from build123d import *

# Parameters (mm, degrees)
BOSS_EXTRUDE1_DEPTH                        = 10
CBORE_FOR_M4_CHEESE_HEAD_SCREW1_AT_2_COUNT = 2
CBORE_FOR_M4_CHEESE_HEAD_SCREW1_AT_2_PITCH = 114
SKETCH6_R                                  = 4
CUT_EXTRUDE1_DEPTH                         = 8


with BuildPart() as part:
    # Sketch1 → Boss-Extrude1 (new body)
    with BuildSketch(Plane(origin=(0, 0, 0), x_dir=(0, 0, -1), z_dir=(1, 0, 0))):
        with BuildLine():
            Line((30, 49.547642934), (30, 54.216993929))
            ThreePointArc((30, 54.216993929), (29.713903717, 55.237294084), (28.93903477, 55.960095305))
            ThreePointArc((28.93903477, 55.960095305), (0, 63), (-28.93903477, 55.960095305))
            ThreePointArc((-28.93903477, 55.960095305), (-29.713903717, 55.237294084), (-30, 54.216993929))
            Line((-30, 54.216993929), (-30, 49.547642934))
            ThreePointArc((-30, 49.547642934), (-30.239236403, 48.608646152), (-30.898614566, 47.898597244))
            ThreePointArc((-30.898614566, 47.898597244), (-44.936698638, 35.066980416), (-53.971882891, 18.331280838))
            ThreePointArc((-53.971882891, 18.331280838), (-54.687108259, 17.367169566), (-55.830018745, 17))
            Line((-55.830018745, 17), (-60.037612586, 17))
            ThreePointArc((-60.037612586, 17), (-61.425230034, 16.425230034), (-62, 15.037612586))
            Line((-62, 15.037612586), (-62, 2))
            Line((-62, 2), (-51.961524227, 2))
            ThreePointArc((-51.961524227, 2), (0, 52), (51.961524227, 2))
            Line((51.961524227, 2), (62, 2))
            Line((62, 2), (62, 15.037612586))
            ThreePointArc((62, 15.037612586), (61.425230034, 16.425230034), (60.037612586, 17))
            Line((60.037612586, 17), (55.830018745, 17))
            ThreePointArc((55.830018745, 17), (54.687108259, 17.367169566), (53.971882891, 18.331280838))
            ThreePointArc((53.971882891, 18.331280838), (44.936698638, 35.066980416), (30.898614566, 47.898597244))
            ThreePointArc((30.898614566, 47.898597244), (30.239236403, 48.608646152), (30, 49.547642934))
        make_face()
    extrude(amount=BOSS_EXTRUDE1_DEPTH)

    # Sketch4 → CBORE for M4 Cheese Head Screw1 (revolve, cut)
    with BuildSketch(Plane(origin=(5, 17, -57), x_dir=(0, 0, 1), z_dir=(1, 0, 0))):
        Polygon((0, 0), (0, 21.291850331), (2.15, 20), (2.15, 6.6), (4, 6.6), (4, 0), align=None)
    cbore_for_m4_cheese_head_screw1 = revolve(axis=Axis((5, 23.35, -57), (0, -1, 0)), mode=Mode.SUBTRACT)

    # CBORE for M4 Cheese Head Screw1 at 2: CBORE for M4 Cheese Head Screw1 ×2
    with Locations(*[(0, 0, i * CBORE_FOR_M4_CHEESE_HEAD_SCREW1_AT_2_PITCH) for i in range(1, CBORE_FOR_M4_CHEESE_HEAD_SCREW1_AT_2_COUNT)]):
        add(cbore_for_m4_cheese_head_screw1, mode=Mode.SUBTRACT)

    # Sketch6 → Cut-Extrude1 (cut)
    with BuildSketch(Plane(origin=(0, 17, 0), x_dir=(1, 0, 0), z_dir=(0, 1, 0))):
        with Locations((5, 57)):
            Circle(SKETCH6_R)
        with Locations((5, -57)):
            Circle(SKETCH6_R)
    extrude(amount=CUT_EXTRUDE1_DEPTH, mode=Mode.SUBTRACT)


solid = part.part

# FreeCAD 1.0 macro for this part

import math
import FreeCAD as App
import Part
import Sketcher
from FreeCAD import Vector
Q = App.Units.Quantity


def add_polygon(sketch, points):
    """Adds a closed chain of lines whose ends are joined by coincident constraints."""
    first, n = sketch.GeometryCount, len(points)
    for a, b in zip(points, points[1:] + points[:1]):
        sketch.addGeometry(Part.LineSegment(App.Vector(*a, 0), App.Vector(*b, 0)), False)
    for i in range(n):
        sketch.addConstraint(Sketcher.Constraint("Coincident", first + i, 2, first + (i + 1) % n, 1))

doc = App.newDocument("Part")
body = doc.addObject("PartDesign::Body", "Body")

sketch1 = doc.addObject("Sketcher::SketchObject", "Sketch")
body.addObject(sketch1)
sketch1.AttachmentSupport = (doc.YZ_Plane, [""])
sketch1.MapMode = "FlatFace"
sketch1.addGeometry(Part.LineSegment(Vector(49.5, -30, 0), Vector(54.2, -30, 0)), False)
sketch1.addGeometry(Part.ArcOfCircle(Part.Circle(Vector(54.2, -28, 0), Vector(0, 0, 1), 2), math.radians(-90), math.radians(-27)), False)
sketch1.addGeometry(Part.ArcOfCircle(Part.Circle(Vector(0, 0, 0), Vector(0, 0, 1), 63), math.radians(-27), math.radians(27)), False)
sketch1.addGeometry(Part.ArcOfCircle(Part.Circle(Vector(54.2, 28, 0), Vector(0, 0, 1), 2), math.radians(27), math.radians(90)), False)
sketch1.addGeometry(Part.LineSegment(Vector(54.2, 30, 0), Vector(49.5, 30, 0)), False)
sketch1.addGeometry(Part.ArcOfCircle(Part.Circle(Vector(49.5, 32, 0), Vector(0, 0, 1), 2), math.radians(-147), math.radians(-90)), False)
sketch1.addGeometry(Part.ArcOfCircle(Part.Circle(Vector(0, 0, 0), Vector(0, 0, 1), 57), math.radians(33), math.radians(71)), False)
sketch1.addGeometry(Part.ArcOfCircle(Part.Circle(Vector(19, 55.8, 0), Vector(0, 0, 1), 2), math.radians(-180), math.radians(-109)), False)
sketch1.addGeometry(Part.LineSegment(Vector(17, 55.8, 0), Vector(17, 60, 0)), False)
sketch1.addGeometry(Part.ArcOfCircle(Part.Circle(Vector(15, 60, 0), Vector(0, 0, 1), 2), math.radians(0), math.radians(90)), False)
sketch1.addGeometry(Part.LineSegment(Vector(15, 62, 0), Vector(2, 62, 0)), False)
sketch1.addGeometry(Part.LineSegment(Vector(2, 62, 0), Vector(2, 52, 0)), False)
sketch1.addGeometry(Part.ArcOfCircle(Part.Circle(Vector(0, 0, 0), Vector(0, 0, 1), 52), math.radians(-88), math.radians(88)), False)
sketch1.addGeometry(Part.LineSegment(Vector(2, -52, 0), Vector(2, -62, 0)), False)
sketch1.addGeometry(Part.LineSegment(Vector(2, -62, 0), Vector(15, -62, 0)), False)
sketch1.addGeometry(Part.ArcOfCircle(Part.Circle(Vector(15, -60, 0), Vector(0, 0, 1), 2), math.radians(-90), math.radians(0)), False)
sketch1.addGeometry(Part.LineSegment(Vector(17, -60, 0), Vector(17, -55.8, 0)), False)
sketch1.addGeometry(Part.ArcOfCircle(Part.Circle(Vector(19, -55.8, 0), Vector(0, 0, 1), 2), math.radians(109), math.radians(180)), False)
sketch1.addGeometry(Part.ArcOfCircle(Part.Circle(Vector(0, 0, 0), Vector(0, 0, 1), 57), math.radians(-71), math.radians(-33)), False)
sketch1.addGeometry(Part.ArcOfCircle(Part.Circle(Vector(49.5, -32, 0), Vector(0, 0, 1), 2), math.radians(90), math.radians(147)), False)
sketch1.addConstraint(Sketcher.Constraint("Tangent", 0, 2, 1, 1))
sketch1.addConstraint(Sketcher.Constraint("Tangent", 1, 2, 2, 1))
sketch1.addConstraint(Sketcher.Constraint("Tangent", 2, 2, 3, 1))
sketch1.addConstraint(Sketcher.Constraint("Tangent", 3, 2, 4, 1))
sketch1.addConstraint(Sketcher.Constraint("Tangent", 4, 2, 5, 2))
sketch1.addConstraint(Sketcher.Constraint("Tangent", 5, 1, 6, 1))
sketch1.addConstraint(Sketcher.Constraint("Tangent", 6, 2, 7, 2))
sketch1.addConstraint(Sketcher.Constraint("Tangent", 7, 1, 8, 1))
sketch1.addConstraint(Sketcher.Constraint("Tangent", 8, 2, 9, 1))
sketch1.addConstraint(Sketcher.Constraint("Tangent", 9, 2, 10, 1))
sketch1.addConstraint(Sketcher.Constraint("Coincident", 10, 2, 11, 1))
sketch1.addConstraint(Sketcher.Constraint("Coincident", 11, 2, 12, 2))
sketch1.addConstraint(Sketcher.Constraint("Coincident", 12, 1, 13, 1))
sketch1.addConstraint(Sketcher.Constraint("Coincident", 13, 2, 14, 1))
sketch1.addConstraint(Sketcher.Constraint("Tangent", 14, 2, 15, 1))
sketch1.addConstraint(Sketcher.Constraint("Tangent", 15, 2, 16, 1))
sketch1.addConstraint(Sketcher.Constraint("Tangent", 16, 2, 17, 2))
sketch1.addConstraint(Sketcher.Constraint("Tangent", 17, 1, 18, 1))
sketch1.addConstraint(Sketcher.Constraint("Tangent", 18, 2, 19, 2))
sketch1.addConstraint(Sketcher.Constraint("Tangent", 19, 1, 0, 1))
sketch1.addConstraint(Sketcher.Constraint("Horizontal", 0))
sketch1.addConstraint(Sketcher.Constraint("Horizontal", 4))
sketch1.addConstraint(Sketcher.Constraint("Vertical", 8))
sketch1.addConstraint(Sketcher.Constraint("Horizontal", 10))
sketch1.addConstraint(Sketcher.Constraint("Vertical", 11))
sketch1.addConstraint(Sketcher.Constraint("Vertical", 13))
sketch1.addConstraint(Sketcher.Constraint("Horizontal", 14))
sketch1.addConstraint(Sketcher.Constraint("Vertical", 16))
sketch1.addConstraint(Sketcher.Constraint("Coincident", 2, 3, -1, 1))
sketch1.addConstraint(Sketcher.Constraint("Coincident", 6, 3, -1, 1))
sketch1.addConstraint(Sketcher.Constraint("Coincident", 12, 3, -1, 1))
sketch1.addConstraint(Sketcher.Constraint("Coincident", 18, 3, -1, 1))
sketch1.addConstraint(Sketcher.Constraint("Equal", 1, 3))
sketch1.addConstraint(Sketcher.Constraint("Equal", 3, 5))
sketch1.addConstraint(Sketcher.Constraint("Equal", 5, 7))
sketch1.addConstraint(Sketcher.Constraint("Equal", 7, 9))
sketch1.addConstraint(Sketcher.Constraint("Equal", 9, 15))
sketch1.addConstraint(Sketcher.Constraint("Equal", 15, 17))
sketch1.addConstraint(Sketcher.Constraint("Equal", 6, 18))
sketch1.addConstraint(Sketcher.Constraint("Equal", 17, 19))
sketch1.addConstraint(Sketcher.Constraint("Symmetric", 9, 3, 15, 3, -1))
sketch1.addConstraint(Sketcher.Constraint("Vertical", 1, 3, 3, 3))
sketch1.addConstraint(Sketcher.Constraint("Vertical", 11, 2, 12, 1))
sketch1.addConstraint(Sketcher.Constraint("Radius", 2, 63.0))
sketch1.addConstraint(Sketcher.Constraint("Radius", 6, 57.0))
sketch1.addConstraint(Sketcher.Constraint("Radius", 12, 52.0))
sketch1.addConstraint(Sketcher.Constraint("DistanceY", 0, 2, -1, 1, 30.0))
sketch1.addConstraint(Sketcher.Constraint("DistanceX", -1, 1, 7, 1, 17.0))
sketch1.addConstraint(Sketcher.Constraint("DistanceY", -1, 1, 9, 2, 62.0))
sketch1.addConstraint(Sketcher.Constraint("DistanceX", -1, 1, 10, 2, 2.0))
sketch1.addConstraint(Sketcher.Constraint("Radius", 1, 1.962387))
pad1 = doc.addObject("PartDesign::Pad", "Pad")
body.addObject(pad1)
pad1.Profile = sketch1
pad1.Length = 10

sketch2 = doc.addObject("Sketcher::SketchObject", "Sketch001")
body.addObject(sketch2)
sketch2.AttachmentSupport = (doc.YZ_Plane, [""])
sketch2.MapMode = "FlatFace"
sketch2.AttachmentOffset = App.Placement(Vector(0, 0, 5), App.Rotation())
add_polygon(sketch2, [(-4.3, -57), (17, -57), (17, -53), (10.4, -53), (10.4, -54.9), (-3, -54.9)])
sketch2.addGeometry(Part.LineSegment(Vector(17, -57, 0), Vector(-4.3, -57, 0)), True)
sketch2.addConstraint(Sketcher.Constraint("Horizontal", 0))
sketch2.addConstraint(Sketcher.Constraint("Vertical", 1))
sketch2.addConstraint(Sketcher.Constraint("Horizontal", 2))
sketch2.addConstraint(Sketcher.Constraint("Vertical", 3))
sketch2.addConstraint(Sketcher.Constraint("Horizontal", 4))
sketch2.addConstraint(Sketcher.Constraint("Horizontal", 6))
sketch2.addConstraint(Sketcher.Constraint("Coincident", 6, 1, 0, 2))
sketch2.addConstraint(Sketcher.Constraint("Equal", 0, 6))
sketch2.addConstraint(Sketcher.Constraint("DistanceY", 1, 1, 1, 2, 4.0))
sketch2.addConstraint(Sketcher.Constraint("Angle", 5, Q("-121 deg")))
sketch2.addConstraint(Sketcher.Constraint("DistanceX", 2, 2, 2, 1, 6.6))
sketch2.addConstraint(Sketcher.Constraint("DistanceX", 4, 2, 4, 1, 13.4))
sketch2.addConstraint(Sketcher.Constraint("DistanceX", -1, 1, 0, 2, 17.0))
sketch2.addConstraint(Sketcher.Constraint("DistanceY", 0, 2, -1, 1, 57.0))
sketch2.addConstraint(Sketcher.Constraint("DistanceY", 3, 2, 3, 1, 1.85))
groove = doc.addObject("PartDesign::Groove", "Groove")
body.addObject(groove)
groove.Profile = sketch2
groove.ReferenceAxis = (sketch2, ["Axis0"])
groove.Angle = 360
doc.recompute()

linearpattern = doc.addObject("PartDesign::LinearPattern", "LinearPattern")
body.addObject(linearpattern)
linearpattern.Originals = [groove]
linearpattern.Direction = (doc.Z_Axis, [""])
linearpattern.Mode = "offset"
linearpattern.Offset = 114
linearpattern.Occurrences = 2
body.Tip = linearpattern

sketch3 = doc.addObject("Sketcher::SketchObject", "Sketch002")
body.addObject(sketch3)
sketch3.AttachmentSupport = (doc.XZ_Plane, [""])
sketch3.MapMode = "FlatFace"
sketch3.AttachmentOffset = App.Placement(Vector(0, 0, -17), App.Rotation())
sketch3.addGeometry(Part.Circle(Vector(5, -57, 0), Vector(0, 0, 1), 4), False)
sketch3.addGeometry(Part.Circle(Vector(5, 57, 0), Vector(0, 0, 1), 4), False)
sketch3.addConstraint(Sketcher.Constraint("Equal", 0, 1))
sketch3.addConstraint(Sketcher.Constraint("Symmetric", 0, 3, 1, 3, -1))
sketch3.addConstraint(Sketcher.Constraint("Diameter", 0, 8.0))
sketch3.addConstraint(Sketcher.Constraint("DistanceX", -1, 1, 0, 3, 5.0))
sketch3.addConstraint(Sketcher.Constraint("DistanceY", 0, 3, -1, 1, 57.0))
pocket1 = doc.addObject("PartDesign::Pocket", "Pocket")
body.addObject(pocket1)
pocket1.Profile = sketch3
pocket1.Length = 8

doc.recompute()
